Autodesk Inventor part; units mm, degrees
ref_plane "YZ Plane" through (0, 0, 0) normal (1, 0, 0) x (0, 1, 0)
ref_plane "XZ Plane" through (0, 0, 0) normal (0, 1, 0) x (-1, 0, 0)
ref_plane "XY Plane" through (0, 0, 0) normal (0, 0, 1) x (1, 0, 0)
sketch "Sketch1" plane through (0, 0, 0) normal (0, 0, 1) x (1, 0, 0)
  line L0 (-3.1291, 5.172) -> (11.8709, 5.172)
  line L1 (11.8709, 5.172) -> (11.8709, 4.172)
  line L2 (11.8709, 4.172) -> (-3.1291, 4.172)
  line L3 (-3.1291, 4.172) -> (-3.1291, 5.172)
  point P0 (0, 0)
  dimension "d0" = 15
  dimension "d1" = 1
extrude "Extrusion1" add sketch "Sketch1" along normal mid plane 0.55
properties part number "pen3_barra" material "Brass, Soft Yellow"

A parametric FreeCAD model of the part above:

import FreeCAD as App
import Part
import Sketcher
Q = App.Units.Quantity


def add_polygon(sketch, points):
    """Adds a closed chain of lines whose ends are joined by coincident constraints."""
    first, n = sketch.GeometryCount, len(points)
    for a, b in zip(points, points[1:] + points[:1]):
        sketch.addGeometry(Part.LineSegment(App.Vector(*a, 0), App.Vector(*b, 0)), False)
    for i in range(n):
        sketch.addConstraint(Sketcher.Constraint("Coincident", first + i, 2, first + (i + 1) % n, 1))

doc = App.newDocument("Part")
params = doc.addObject("Spreadsheet::Sheet", "Params")
for row, (alias, value) in enumerate([
    ("sketch1_width", "15 mm"),
    ("sketch1_height", "1 mm"),
    ("pad1_length", "0.55 mm"),
], start=1):
    params.set(f"A{row}", alias)
    params.set(f"B{row}", "=" + value)
    params.setAlias(f"B{row}", alias)

body = doc.addObject("PartDesign::Body", "Body")

# Sketch on XY plane
sketch1 = body.newObject("Sketcher::SketchObject", "Sketch")
sketch1.AttachmentSupport = (doc.getObject("XY_Plane"), [""])
sketch1.MapMode = "FlatFace"
add_polygon(sketch1, [(11.9, 5.2), (-3.1, 5.2), (-3.1, 4.2), (11.9, 4.2)])  # lines 0-3
sketch1.addConstraint([
    Sketcher.Constraint("Horizontal", 0),
    Sketcher.Constraint("Vertical", 1),
    Sketcher.Constraint("Horizontal", 2),
    Sketcher.Constraint("Vertical", 3),
    Sketcher.Constraint("DistanceX", 0, 2, 0, 1, Q("15 mm")),
    Sketcher.Constraint("DistanceY", 1, 2, 1, 1, Q("1 mm")),
    Sketcher.Constraint("DistanceX", 0, 2, -1, 1, Q("3.129 mm")),
    Sketcher.Constraint("DistanceY", -1, 1, 0, 2, Q("5.172 mm")),
])
sketch1.setExpression("Constraints[8]", "Params.sketch1_width")
sketch1.setExpression("Constraints[9]", "Params.sketch1_height")
pad1 = body.newObject("PartDesign::Pad", "Pad")
pad1.Profile = sketch1
pad1.setExpression("Length", "Params.pad1_length")
pad1.Midplane = True

doc.recompute()
